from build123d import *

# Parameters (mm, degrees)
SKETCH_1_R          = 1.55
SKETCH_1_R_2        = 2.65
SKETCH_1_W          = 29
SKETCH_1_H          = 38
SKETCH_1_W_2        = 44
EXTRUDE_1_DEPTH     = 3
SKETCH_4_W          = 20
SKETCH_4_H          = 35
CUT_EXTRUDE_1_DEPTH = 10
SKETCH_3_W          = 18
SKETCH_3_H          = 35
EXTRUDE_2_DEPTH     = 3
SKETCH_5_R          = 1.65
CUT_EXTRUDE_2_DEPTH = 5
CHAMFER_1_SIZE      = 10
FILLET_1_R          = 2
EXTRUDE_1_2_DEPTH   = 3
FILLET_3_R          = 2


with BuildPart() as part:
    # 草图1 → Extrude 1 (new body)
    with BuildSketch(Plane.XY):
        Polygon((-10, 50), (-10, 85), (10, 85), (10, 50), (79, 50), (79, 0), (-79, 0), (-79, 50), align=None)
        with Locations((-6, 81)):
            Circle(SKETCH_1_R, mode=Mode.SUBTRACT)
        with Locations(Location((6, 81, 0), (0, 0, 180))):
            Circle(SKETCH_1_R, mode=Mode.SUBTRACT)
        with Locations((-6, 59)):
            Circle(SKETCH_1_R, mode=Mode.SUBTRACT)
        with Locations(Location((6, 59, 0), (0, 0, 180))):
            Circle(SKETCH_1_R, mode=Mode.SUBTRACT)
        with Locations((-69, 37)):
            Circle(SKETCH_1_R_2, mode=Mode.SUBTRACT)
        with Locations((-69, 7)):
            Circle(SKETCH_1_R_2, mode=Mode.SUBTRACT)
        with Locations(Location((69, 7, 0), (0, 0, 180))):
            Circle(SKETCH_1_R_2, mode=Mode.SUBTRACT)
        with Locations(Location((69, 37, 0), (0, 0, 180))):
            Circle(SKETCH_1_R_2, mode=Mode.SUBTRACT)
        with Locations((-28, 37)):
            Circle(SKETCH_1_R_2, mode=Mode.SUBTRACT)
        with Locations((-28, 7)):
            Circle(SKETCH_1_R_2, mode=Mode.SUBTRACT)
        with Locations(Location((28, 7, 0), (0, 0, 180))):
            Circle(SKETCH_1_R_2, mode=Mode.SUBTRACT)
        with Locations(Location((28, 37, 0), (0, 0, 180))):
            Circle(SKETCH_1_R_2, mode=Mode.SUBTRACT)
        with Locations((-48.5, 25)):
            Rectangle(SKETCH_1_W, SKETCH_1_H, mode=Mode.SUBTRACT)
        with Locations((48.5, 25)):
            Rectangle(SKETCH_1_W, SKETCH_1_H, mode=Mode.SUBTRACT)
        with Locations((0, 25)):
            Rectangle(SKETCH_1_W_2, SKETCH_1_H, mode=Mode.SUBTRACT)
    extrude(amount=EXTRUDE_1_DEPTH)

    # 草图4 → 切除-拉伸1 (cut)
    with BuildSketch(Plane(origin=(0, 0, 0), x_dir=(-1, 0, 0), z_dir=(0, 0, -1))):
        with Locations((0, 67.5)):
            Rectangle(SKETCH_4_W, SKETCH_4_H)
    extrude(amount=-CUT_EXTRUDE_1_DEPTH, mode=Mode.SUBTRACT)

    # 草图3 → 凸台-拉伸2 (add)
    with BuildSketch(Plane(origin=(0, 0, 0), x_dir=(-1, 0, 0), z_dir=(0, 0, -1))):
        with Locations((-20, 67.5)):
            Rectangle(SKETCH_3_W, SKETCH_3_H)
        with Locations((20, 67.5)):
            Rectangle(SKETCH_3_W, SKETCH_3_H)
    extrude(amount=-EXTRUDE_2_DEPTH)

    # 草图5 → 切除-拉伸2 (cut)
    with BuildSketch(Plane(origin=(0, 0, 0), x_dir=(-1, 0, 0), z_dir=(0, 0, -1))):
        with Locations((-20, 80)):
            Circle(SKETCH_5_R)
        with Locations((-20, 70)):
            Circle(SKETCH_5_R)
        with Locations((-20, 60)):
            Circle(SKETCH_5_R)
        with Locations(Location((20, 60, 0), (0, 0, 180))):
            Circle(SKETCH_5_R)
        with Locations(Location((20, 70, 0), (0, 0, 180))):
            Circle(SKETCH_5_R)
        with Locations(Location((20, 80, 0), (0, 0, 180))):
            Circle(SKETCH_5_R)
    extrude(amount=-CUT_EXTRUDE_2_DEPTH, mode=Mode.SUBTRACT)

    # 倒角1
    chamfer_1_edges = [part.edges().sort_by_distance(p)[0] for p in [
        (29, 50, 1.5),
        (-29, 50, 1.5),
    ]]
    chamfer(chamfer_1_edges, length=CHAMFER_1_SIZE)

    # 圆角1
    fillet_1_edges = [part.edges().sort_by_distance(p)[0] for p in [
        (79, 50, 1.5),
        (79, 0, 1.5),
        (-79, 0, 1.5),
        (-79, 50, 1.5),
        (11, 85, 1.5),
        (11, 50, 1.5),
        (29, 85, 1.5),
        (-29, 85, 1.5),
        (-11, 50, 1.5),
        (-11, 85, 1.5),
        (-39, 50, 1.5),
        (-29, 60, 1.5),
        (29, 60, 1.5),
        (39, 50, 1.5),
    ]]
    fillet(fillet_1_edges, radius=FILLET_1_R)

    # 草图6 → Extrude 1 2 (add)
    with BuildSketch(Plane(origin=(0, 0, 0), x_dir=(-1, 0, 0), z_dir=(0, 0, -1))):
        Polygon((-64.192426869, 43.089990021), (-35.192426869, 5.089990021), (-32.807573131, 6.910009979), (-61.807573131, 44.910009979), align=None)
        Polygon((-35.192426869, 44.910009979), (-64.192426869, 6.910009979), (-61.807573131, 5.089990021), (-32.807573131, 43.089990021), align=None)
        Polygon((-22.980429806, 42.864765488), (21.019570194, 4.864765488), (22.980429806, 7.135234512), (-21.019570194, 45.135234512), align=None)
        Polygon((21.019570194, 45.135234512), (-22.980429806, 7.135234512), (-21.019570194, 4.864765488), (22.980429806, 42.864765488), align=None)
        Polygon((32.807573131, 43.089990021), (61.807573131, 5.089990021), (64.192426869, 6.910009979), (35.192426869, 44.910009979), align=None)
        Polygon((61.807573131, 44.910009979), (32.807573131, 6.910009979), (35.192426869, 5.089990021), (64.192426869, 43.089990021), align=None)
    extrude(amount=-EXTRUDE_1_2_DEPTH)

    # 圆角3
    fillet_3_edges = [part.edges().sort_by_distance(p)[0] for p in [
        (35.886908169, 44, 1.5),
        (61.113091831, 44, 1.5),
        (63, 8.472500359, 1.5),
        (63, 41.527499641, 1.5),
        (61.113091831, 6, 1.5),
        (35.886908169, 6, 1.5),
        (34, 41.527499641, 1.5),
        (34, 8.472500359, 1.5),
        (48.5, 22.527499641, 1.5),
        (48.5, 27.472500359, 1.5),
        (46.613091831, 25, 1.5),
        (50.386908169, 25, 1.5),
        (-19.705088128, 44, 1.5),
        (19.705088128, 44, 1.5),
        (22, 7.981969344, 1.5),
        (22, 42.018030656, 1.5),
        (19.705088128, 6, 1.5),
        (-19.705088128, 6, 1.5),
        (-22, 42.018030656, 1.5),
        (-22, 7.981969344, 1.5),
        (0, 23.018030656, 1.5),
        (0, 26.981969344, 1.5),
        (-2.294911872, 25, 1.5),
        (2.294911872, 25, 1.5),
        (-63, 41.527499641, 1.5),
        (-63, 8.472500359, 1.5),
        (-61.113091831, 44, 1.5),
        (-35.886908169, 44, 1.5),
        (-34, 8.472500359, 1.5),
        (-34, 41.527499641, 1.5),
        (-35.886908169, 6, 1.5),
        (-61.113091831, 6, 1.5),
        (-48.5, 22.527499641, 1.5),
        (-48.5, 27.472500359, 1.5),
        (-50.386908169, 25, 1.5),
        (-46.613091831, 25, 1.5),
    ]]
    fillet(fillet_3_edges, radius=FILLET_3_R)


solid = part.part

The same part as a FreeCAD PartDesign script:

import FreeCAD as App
import Part
import Sketcher

V = App.Vector
Q = App.Units.Quantity


def edges_at(feature, points):
    """Names of the edges that pass closest to the given points."""
    edges = feature.Shape.Edges
    near = lambda p: min(range(len(edges)), key=lambda i: edges[i].distToShape(Part.Vertex(*p))[0])
    return sorted({f"Edge{near(p) + 1}" for p in points})

doc = App.newDocument("Part")
body = doc.addObject("PartDesign::Body", "Body")

sketch1 = body.newObject("Sketcher::SketchObject", "Sketch")
sketch1.AttachmentSupport = (doc.getObject("XY_Plane"), [""])
sketch1.MapMode = "FlatFace"
sketch1.addGeometry([
    Part.LineSegment(V(-10, 85, 0), V(-10, 50, 0)),
    Part.LineSegment(V(-10, 50, 0), V(-79, 50, 0)),
    Part.LineSegment(V(-79, 50, 0), V(-79, 0, 0)),
    Part.LineSegment(V(-79, 0, 0), V(79, 0, 0)),
    Part.LineSegment(V(79, 0, 0), V(79, 50, 0)),
    Part.LineSegment(V(79, 50, 0), V(10, 50, 0)),
    Part.LineSegment(V(10, 50, 0), V(10, 85, 0)),
    Part.LineSegment(V(10, 85, 0), V(-10, 85, 0)),
    Part.Circle(V(69, 7, 0), V(0, 0, 1), 2.6),
    Part.Circle(V(28, 7, 0), V(0, 0, 1), 2.6),
    Part.LineSegment(V(34, 6, 0), V(34, 44, 0)),
    Part.LineSegment(V(34, 44, 0), V(63, 44, 0)),
    Part.LineSegment(V(63, 44, 0), V(63, 6, 0)),
    Part.LineSegment(V(63, 6, 0), V(34, 6, 0)),
    Part.Circle(V(69, 37, 0), V(0, 0, 1), 2.6),
    Part.Circle(V(28, 37, 0), V(0, 0, 1), 2.6),
    Part.Circle(V(-28, 7, 0), V(0, 0, 1), 2.6),
    Part.Circle(V(-69, 7, 0), V(0, 0, 1), 2.6),
    Part.LineSegment(V(-22, 6, 0), V(-22, 44, 0)),
    Part.LineSegment(V(-22, 44, 0), V(22, 44, 0)),
    Part.LineSegment(V(22, 44, 0), V(22, 6, 0)),
    Part.LineSegment(V(22, 6, 0), V(-22, 6, 0)),
    Part.Circle(V(-28, 37, 0), V(0, 0, 1), 2.6),
    Part.LineSegment(V(-63, 6, 0), V(-63, 44, 0)),
    Part.LineSegment(V(-63, 44, 0), V(-34, 44, 0)),
    Part.LineSegment(V(-34, 44, 0), V(-34, 6, 0)),
    Part.LineSegment(V(-34, 6, 0), V(-63, 6, 0)),
    Part.Circle(V(-69, 37, 0), V(0, 0, 1), 2.6),
    Part.Circle(V(6, 59, 0), V(0, 0, 1), 1.6),
    Part.Circle(V(6, 81, 0), V(0, 0, 1), 1.6),
    Part.Circle(V(-6, 59, 0), V(0, 0, 1), 1.6),
    Part.Circle(V(-6, 81, 0), V(0, 0, 1), 1.6),
], False)
sketch1.addConstraint([
    Sketcher.Constraint("Coincident", 0, 2, 1, 1),
    Sketcher.Constraint("Coincident", 1, 2, 2, 1),
    Sketcher.Constraint("Coincident", 2, 2, 3, 1),
    Sketcher.Constraint("Coincident", 3, 2, 4, 1),
    Sketcher.Constraint("Coincident", 4, 2, 5, 1),
    Sketcher.Constraint("Coincident", 5, 2, 6, 1),
    Sketcher.Constraint("Coincident", 6, 2, 7, 1),
    Sketcher.Constraint("Coincident", 7, 2, 0, 1),
    Sketcher.Constraint("Coincident", 10, 2, 11, 1),
    Sketcher.Constraint("Coincident", 11, 2, 12, 1),
    Sketcher.Constraint("Coincident", 12, 2, 13, 1),
    Sketcher.Constraint("Coincident", 13, 2, 10, 1),
    Sketcher.Constraint("Coincident", 18, 2, 19, 1),
    Sketcher.Constraint("Coincident", 19, 2, 20, 1),
    Sketcher.Constraint("Coincident", 20, 2, 21, 1),
    Sketcher.Constraint("Coincident", 21, 2, 18, 1),
    Sketcher.Constraint("Coincident", 23, 2, 24, 1),
    Sketcher.Constraint("Coincident", 24, 2, 25, 1),
    Sketcher.Constraint("Coincident", 25, 2, 26, 1),
    Sketcher.Constraint("Coincident", 26, 2, 23, 1),
    Sketcher.Constraint("Vertical", 0),
    Sketcher.Constraint("Horizontal", 1),
    Sketcher.Constraint("Vertical", 2),
    Sketcher.Constraint("Horizontal", 3),
    Sketcher.Constraint("Vertical", 4),
    Sketcher.Constraint("Horizontal", 5),
    Sketcher.Constraint("Vertical", 6),
    Sketcher.Constraint("Horizontal", 7),
    Sketcher.Constraint("Vertical", 10),
    Sketcher.Constraint("Horizontal", 11),
    Sketcher.Constraint("Vertical", 12),
    Sketcher.Constraint("Horizontal", 13),
    Sketcher.Constraint("Vertical", 18),
    Sketcher.Constraint("Horizontal", 19),
    Sketcher.Constraint("Vertical", 20),
    Sketcher.Constraint("Horizontal", 21),
    Sketcher.Constraint("Vertical", 23),
    Sketcher.Constraint("Horizontal", 24),
    Sketcher.Constraint("Vertical", 25),
    Sketcher.Constraint("Horizontal", 26),
    Sketcher.Constraint("Equal", 8, 9),
    Sketcher.Constraint("Equal", 9, 14),
    Sketcher.Constraint("Equal", 14, 15),
    Sketcher.Constraint("Equal", 15, 16),
    Sketcher.Constraint("Equal", 16, 17),
    Sketcher.Constraint("Equal", 17, 22),
    Sketcher.Constraint("Equal", 22, 27),
    Sketcher.Constraint("Equal", 28, 29),
    Sketcher.Constraint("Equal", 29, 30),
    Sketcher.Constraint("Equal", 30, 31),
    Sketcher.Constraint("Symmetric", 2, 2, 3, 2, -1, 1),
    Sketcher.Constraint("Symmetric", 9, 3, 16, 3, -2),
    Sketcher.Constraint("Symmetric", 8, 3, 17, 3, -2),
    Sketcher.Constraint("Symmetric", 15, 3, 22, 3, -2),
    Sketcher.Constraint("Symmetric", 14, 3, 27, 3, -2),
    Sketcher.Constraint("Symmetric", 28, 3, 30, 3, -2),
    Sketcher.Constraint("Symmetric", 29, 3, 31, 3, -2),
    Sketcher.Constraint("Symmetric", 0, 2, 5, 2, -2),
    Sketcher.Constraint("Symmetric", 11, 2, 23, 2, -2),
    Sketcher.Constraint("Symmetric", 13, 2, 25, 2, -2),
    Sketcher.Constraint("Horizontal", 8, 3, 9, 3),
    Sketcher.Constraint("Horizontal", 14, 3, 15, 3),
    Sketcher.Constraint("Horizontal", 11, 2, 18, 2),
    Sketcher.Constraint("Horizontal", 13, 2, 20, 2),
    Sketcher.Constraint("Vertical", 8, 3, 14, 3),
    Sketcher.Constraint("Vertical", 9, 3, 15, 3),
    Sketcher.Constraint("Vertical", 28, 3, 29, 3),
    Sketcher.Constraint("Diameter", 8, Q("5.3 mm")),
    Sketcher.Constraint("Diameter", 28, Q("3.1 mm")),
    Sketcher.Constraint("DistanceX", 1, 2, 1, 1, Q("69 mm")),
    Sketcher.Constraint("DistanceX", 3, 1, 3, 2, Q("158 mm")),
    Sketcher.Constraint("DistanceX", 11, 1, 11, 2, Q("29 mm")),
    Sketcher.Constraint("DistanceX", 19, 1, 19, 2, Q("44 mm")),
    Sketcher.Constraint("DistanceY", 0, 2, 0, 1, Q("35 mm")),
    Sketcher.Constraint("DistanceY", 2, 2, 2, 1, Q("50 mm")),
    Sketcher.Constraint("DistanceY", 10, 1, 10, 2, Q("38 mm")),
    Sketcher.Constraint("DistanceX", -1, 1, 8, 3, Q("69 mm")),
    Sketcher.Constraint("DistanceY", -1, 1, 8, 3, Q("7 mm")),
    Sketcher.Constraint("DistanceX", -1, 1, 9, 3, Q("28 mm")),
    Sketcher.Constraint("DistanceY", -1, 1, 14, 3, Q("37 mm")),
    Sketcher.Constraint("DistanceX", -1, 1, 28, 3, Q("6 mm")),
    Sketcher.Constraint("DistanceY", -1, 1, 28, 3, Q("59 mm")),
    Sketcher.Constraint("DistanceY", -1, 1, 29, 3, Q("81 mm")),
    Sketcher.Constraint("DistanceX", -1, 1, 10, 2, Q("34 mm")),
    Sketcher.Constraint("DistanceY", -1, 1, 10, 2, Q("44 mm")),
    Sketcher.Constraint("DistanceX", 18, 2, -1, 1, Q("22 mm")),
])
pad1 = body.newObject("PartDesign::Pad", "Pad")
pad1.Profile = sketch1
pad1.Length = 3

sketch2 = body.newObject("Sketcher::SketchObject", "Sketch001")
sketch2.AttachmentSupport = (doc.getObject("XY_Plane"), [""])
sketch2.MapMode = "FlatFace"
sketch2.addGeometry([
    Part.LineSegment(V(10, 85, 0), V(10, 50, 0)),
    Part.LineSegment(V(10, 50, 0), V(-10, 50, 0)),
    Part.LineSegment(V(-10, 50, 0), V(-10, 85, 0)),
    Part.LineSegment(V(-10, 85, 0), V(10, 85, 0)),
], False)
sketch2.addConstraint([
    Sketcher.Constraint("Coincident", 0, 2, 1, 1),
    Sketcher.Constraint("Coincident", 1, 2, 2, 1),
    Sketcher.Constraint("Coincident", 2, 2, 3, 1),
    Sketcher.Constraint("Coincident", 3, 2, 0, 1),
    Sketcher.Constraint("Vertical", 0),
    Sketcher.Constraint("Horizontal", 1),
    Sketcher.Constraint("Vertical", 2),
    Sketcher.Constraint("Horizontal", 3),
    Sketcher.Constraint("DistanceX", 1, 2, 1, 1, Q("20 mm")),
    Sketcher.Constraint("DistanceY", 0, 2, 0, 1, Q("35 mm")),
    Sketcher.Constraint("DistanceX", -1, 1, 0, 2, Q("10 mm")),
    Sketcher.Constraint("DistanceY", -1, 1, 0, 2, Q("50 mm")),
])
pocket1 = body.newObject("PartDesign::Pocket", "Pocket")
pocket1.Profile = sketch2
pocket1.Length = 10
pocket1.Reversed = True

sketch3 = body.newObject("Sketcher::SketchObject", "Sketch002")
sketch3.AttachmentSupport = (doc.getObject("XY_Plane"), [""])
sketch3.MapMode = "FlatFace"
sketch3.addGeometry([
    Part.LineSegment(V(29, 85, 0), V(29, 50, 0)),
    Part.LineSegment(V(29, 50, 0), V(11, 50, 0)),
    Part.LineSegment(V(11, 50, 0), V(11, 85, 0)),
    Part.LineSegment(V(11, 85, 0), V(29, 85, 0)),
    Part.LineSegment(V(-11, 85, 0), V(-11, 50, 0)),
    Part.LineSegment(V(-11, 50, 0), V(-29, 50, 0)),
    Part.LineSegment(V(-29, 50, 0), V(-29, 85, 0)),
    Part.LineSegment(V(-29, 85, 0), V(-11, 85, 0)),
], False)
sketch3.addConstraint([
    Sketcher.Constraint("Coincident", 0, 2, 1, 1),
    Sketcher.Constraint("Coincident", 1, 2, 2, 1),
    Sketcher.Constraint("Coincident", 2, 2, 3, 1),
    Sketcher.Constraint("Coincident", 3, 2, 0, 1),
    Sketcher.Constraint("Coincident", 4, 2, 5, 1),
    Sketcher.Constraint("Coincident", 5, 2, 6, 1),
    Sketcher.Constraint("Coincident", 6, 2, 7, 1),
    Sketcher.Constraint("Coincident", 7, 2, 4, 1),
    Sketcher.Constraint("Vertical", 0),
    Sketcher.Constraint("Horizontal", 1),
    Sketcher.Constraint("Vertical", 2),
    Sketcher.Constraint("Horizontal", 3),
    Sketcher.Constraint("Vertical", 4),
    Sketcher.Constraint("Horizontal", 5),
    Sketcher.Constraint("Vertical", 6),
    Sketcher.Constraint("Horizontal", 7),
    Sketcher.Constraint("Symmetric", 1, 2, 4, 2, -2),
    Sketcher.Constraint("Symmetric", 3, 2, 6, 2, -2),
    Sketcher.Constraint("DistanceX", 1, 2, 1, 1, Q("18 mm")),
    Sketcher.Constraint("DistanceY", 0, 2, 0, 1, Q("35 mm")),
    Sketcher.Constraint("DistanceX", -1, 1, 0, 2, Q("29 mm")),
    Sketcher.Constraint("DistanceY", -1, 1, 0, 2, Q("50 mm")),
])
pad2 = body.newObject("PartDesign::Pad", "Pad001")
pad2.Profile = sketch3
pad2.Length = 3

sketch4 = body.newObject("Sketcher::SketchObject", "Sketch003")
sketch4.AttachmentSupport = (doc.getObject("XY_Plane"), [""])
sketch4.MapMode = "FlatFace"
sketch4.addGeometry([
    Part.Circle(V(20, 80, 0), V(0, 0, 1), 1.6),
    Part.Circle(V(20, 70, 0), V(0, 0, 1), 1.6),
    Part.Circle(V(20, 60, 0), V(0, 0, 1), 1.6),
    Part.Circle(V(-20, 60, 0), V(0, 0, 1), 1.6),
    Part.Circle(V(-20, 70, 0), V(0, 0, 1), 1.6),
    Part.Circle(V(-20, 80, 0), V(0, 0, 1), 1.6),
], False)
sketch4.addConstraint([
    Sketcher.Constraint("Equal", 0, 1),
    Sketcher.Constraint("Equal", 1, 2),
    Sketcher.Constraint("Equal", 2, 3),
    Sketcher.Constraint("Equal", 3, 4),
    Sketcher.Constraint("Equal", 4, 5),
    Sketcher.Constraint("Symmetric", 2, 3, 3, 3, -2),
    Sketcher.Constraint("Symmetric", 1, 3, 4, 3, -2),
    Sketcher.Constraint("Symmetric", 0, 3, 5, 3, -2),
    Sketcher.Constraint("Vertical", 0, 3, 1, 3),
    Sketcher.Constraint("Vertical", 1, 3, 2, 3),
    Sketcher.Constraint("Diameter", 0, Q("3.3 mm")),
    Sketcher.Constraint("DistanceX", -1, 1, 0, 3, Q("20 mm")),
    Sketcher.Constraint("DistanceY", -1, 1, 0, 3, Q("80 mm")),
    Sketcher.Constraint("DistanceY", -1, 1, 1, 3, Q("70 mm")),
    Sketcher.Constraint("DistanceY", -1, 1, 2, 3, Q("60 mm")),
])
pocket2 = body.newObject("PartDesign::Pocket", "Pocket001")
pocket2.Profile = sketch4
pocket2.Length = 5
pocket2.Reversed = True
doc.recompute()

chamfer = body.newObject("PartDesign::Chamfer", "Chamfer")
chamfer.Base = (pocket2, edges_at(pocket2, [(29, 50, 1.5), (-29, 50, 1.5)]))
chamfer.Size = 10
doc.recompute()

fillet = body.newObject("PartDesign::Fillet", "Fillet")
fillet.Base = (chamfer, edges_at(chamfer, [
    (79, 50, 1.5),
    (79, 0, 1.5),
    (-79, 0, 1.5),
    (-79, 50, 1.5),
    (11, 85, 1.5),
    (11, 50, 1.5),
    (29, 85, 1.5),
    (-29, 85, 1.5),
    (-11, 50, 1.5),
    (-11, 85, 1.5),
    (-39, 50, 1.5),
    (-29, 60, 1.5),
    (29, 60, 1.5),
    (39, 50, 1.5),
]))
fillet.Radius = 2

sketch5 = body.newObject("Sketcher::SketchObject", "Sketch004")
sketch5.AttachmentSupport = (doc.getObject("XY_Plane"), [""])
sketch5.MapMode = "FlatFace"
sketch5.addGeometry([
    Part.LineSegment(V(61.8, 44.9, 0), V(64.2, 43.1, 0)),
    Part.LineSegment(V(64.2, 43.1, 0), V(50.4, 25, 0)),
    Part.LineSegment(V(50.4, 25, 0), V(64.2, 6.9, 0)),
    Part.LineSegment(V(64.2, 6.9, 0), V(61.8, 5.1, 0)),
    Part.LineSegment(V(61.8, 5.1, 0), V(48.5, 22.5, 0)),
    Part.LineSegment(V(48.5, 22.5, 0), V(35.2, 5.1, 0)),
    Part.LineSegment(V(35.2, 5.1, 0), V(32.8, 6.9, 0)),
    Part.LineSegment(V(32.8, 6.9, 0), V(46.6, 25, 0)),
    Part.LineSegment(V(46.6, 25, 0), V(32.8, 43.1, 0)),
    Part.LineSegment(V(32.8, 43.1, 0), V(35.2, 44.9, 0)),
    Part.LineSegment(V(35.2, 44.9, 0), V(48.5, 27.5, 0)),
    Part.LineSegment(V(48.5, 27.5, 0), V(61.8, 44.9, 0)),
    Part.LineSegment(V(21, 45.1, 0), V(23, 42.9, 0)),
    Part.LineSegment(V(23, 42.9, 0), V(2.3, 25, 0)),
    Part.LineSegment(V(2.3, 25, 0), V(23, 7.1, 0)),
    Part.LineSegment(V(23, 7.1, 0), V(21, 4.9, 0)),
    Part.LineSegment(V(21, 4.9, 0), V(0, 23, 0)),
    Part.LineSegment(V(0, 23, 0), V(-21, 4.9, 0)),
    Part.LineSegment(V(-21, 4.9, 0), V(-23, 7.1, 0)),
    Part.LineSegment(V(-23, 7.1, 0), V(-2.3, 25, 0)),
    Part.LineSegment(V(-2.3, 25, 0), V(-23, 42.9, 0)),
    Part.LineSegment(V(-23, 42.9, 0), V(-21, 45.1, 0)),
    Part.LineSegment(V(-21, 45.1, 0), V(0, 27, 0)),
    Part.LineSegment(V(0, 27, 0), V(21, 45.1, 0)),
    Part.LineSegment(V(-35.2, 44.9, 0), V(-32.8, 43.1, 0)),
    Part.LineSegment(V(-32.8, 43.1, 0), V(-46.6, 25, 0)),
    Part.LineSegment(V(-46.6, 25, 0), V(-32.8, 6.9, 0)),
    Part.LineSegment(V(-32.8, 6.9, 0), V(-35.2, 5.1, 0)),
    Part.LineSegment(V(-35.2, 5.1, 0), V(-48.5, 22.5, 0)),
    Part.LineSegment(V(-48.5, 22.5, 0), V(-61.8, 5.1, 0)),
    Part.LineSegment(V(-61.8, 5.1, 0), V(-64.2, 6.9, 0)),
    Part.LineSegment(V(-64.2, 6.9, 0), V(-50.4, 25, 0)),
    Part.LineSegment(V(-50.4, 25, 0), V(-64.2, 43.1, 0)),
    Part.LineSegment(V(-64.2, 43.1, 0), V(-61.8, 44.9, 0)),
    Part.LineSegment(V(-61.8, 44.9, 0), V(-48.5, 27.5, 0)),
    Part.LineSegment(V(-48.5, 27.5, 0), V(-35.2, 44.9, 0)),
], False)
sketch5.addConstraint([
    Sketcher.Constraint("Coincident", 0, 2, 1, 1),
    Sketcher.Constraint("Coincident", 1, 2, 2, 1),
    Sketcher.Constraint("Coincident", 2, 2, 3, 1),
    Sketcher.Constraint("Coincident", 3, 2, 4, 1),
    Sketcher.Constraint("Coincident", 4, 2, 5, 1),
    Sketcher.Constraint("Coincident", 5, 2, 6, 1),
    Sketcher.Constraint("Coincident", 6, 2, 7, 1),
    Sketcher.Constraint("Coincident", 7, 2, 8, 1),
    Sketcher.Constraint("Coincident", 8, 2, 9, 1),
    Sketcher.Constraint("Coincident", 9, 2, 10, 1),
    Sketcher.Constraint("Coincident", 10, 2, 11, 1),
    Sketcher.Constraint("Coincident", 11, 2, 0, 1),
    Sketcher.Constraint("Coincident", 12, 2, 13, 1),
    Sketcher.Constraint("Coincident", 13, 2, 14, 1),
    Sketcher.Constraint("Coincident", 14, 2, 15, 1),
    Sketcher.Constraint("Coincident", 15, 2, 16, 1),
    Sketcher.Constraint("Coincident", 16, 2, 17, 1),
    Sketcher.Constraint("Coincident", 17, 2, 18, 1),
    Sketcher.Constraint("Coincident", 18, 2, 19, 1),
    Sketcher.Constraint("Coincident", 19, 2, 20, 1),
    Sketcher.Constraint("Coincident", 20, 2, 21, 1),
    Sketcher.Constraint("Coincident", 21, 2, 22, 1),
    Sketcher.Constraint("Coincident", 22, 2, 23, 1),
    Sketcher.Constraint("Coincident", 23, 2, 12, 1),
    Sketcher.Constraint("Coincident", 24, 2, 25, 1),
    Sketcher.Constraint("Coincident", 25, 2, 26, 1),
    Sketcher.Constraint("Coincident", 26, 2, 27, 1),
    Sketcher.Constraint("Coincident", 27, 2, 28, 1),
    Sketcher.Constraint("Coincident", 28, 2, 29, 1),
    Sketcher.Constraint("Coincident", 29, 2, 30, 1),
    Sketcher.Constraint("Coincident", 30, 2, 31, 1),
    Sketcher.Constraint("Coincident", 31, 2, 32, 1),
    Sketcher.Constraint("Coincident", 32, 2, 33, 1),
    Sketcher.Constraint("Coincident", 33, 2, 34, 1),
    Sketcher.Constraint("Coincident", 34, 2, 35, 1),
    Sketcher.Constraint("Coincident", 35, 2, 24, 1),
    Sketcher.Constraint("Symmetric", 15, 2, 17, 2, -2),
    Sketcher.Constraint("Symmetric", 14, 2, 18, 2, -2),
    Sketcher.Constraint("Symmetric", 13, 2, 19, 2, -2),
    Sketcher.Constraint("Symmetric", 12, 2, 20, 2, -2),
    Sketcher.Constraint("Symmetric", 21, 2, 23, 2, -2),
    Sketcher.Constraint("Symmetric", 8, 2, 24, 2, -2),
    Sketcher.Constraint("Symmetric", 7, 2, 25, 2, -2),
    Sketcher.Constraint("Symmetric", 6, 2, 26, 2, -2),
    Sketcher.Constraint("Symmetric", 5, 2, 27, 2, -2),
    Sketcher.Constraint("Symmetric", 4, 2, 28, 2, -2),
    Sketcher.Constraint("Symmetric", 3, 2, 29, 2, -2),
    Sketcher.Constraint("Symmetric", 2, 2, 30, 2, -2),
    Sketcher.Constraint("Symmetric", 1, 2, 31, 2, -2),
    Sketcher.Constraint("Symmetric", 0, 2, 32, 2, -2),
    Sketcher.Constraint("Symmetric", 11, 2, 33, 2, -2),
    Sketcher.Constraint("Symmetric", 10, 2, 34, 2, -2),
    Sketcher.Constraint("Symmetric", 9, 2, 35, 2, -2),
    Sketcher.Constraint("PointOnObject", 16, 2, -2),
    Sketcher.Constraint("PointOnObject", 22, 2, -2),
    Sketcher.Constraint("Perpendicular", 0, 1),
    Sketcher.Constraint("Perpendicular", 2, 3),
    Sketcher.Constraint("Perpendicular", 3, 4),
    Sketcher.Constraint("Parallel", 1, 5),
    Sketcher.Constraint("Perpendicular", 5, 6),
    Sketcher.Constraint("Perpendicular", 6, 7),
    Sketcher.Constraint("Parallel", 4, 8),
    Sketcher.Constraint("Perpendicular", 8, 9),
    Sketcher.Constraint("Perpendicular", 9, 10),
    Sketcher.Constraint("Parallel", 7, 11),
    Sketcher.Constraint("Perpendicular", 12, 13),
    Sketcher.Constraint("Perpendicular", 14, 15),
    Sketcher.Constraint("Perpendicular", 15, 16),
    Sketcher.Constraint("Parallel", 13, 17),
    Sketcher.Constraint("Perpendicular", 21, 22),
    Sketcher.Constraint("Perpendicular", 11, 24),
    Sketcher.Constraint("Horizontal", 3, 2, 5, 2),
    Sketcher.Constraint("Horizontal", 2, 2, 6, 2),
    Sketcher.Constraint("Horizontal", 1, 2, 7, 2),
    Sketcher.Constraint("Horizontal", 0, 2, 8, 2),
    Sketcher.Constraint("Horizontal", 9, 2, 11, 2),
    Sketcher.Constraint("Horizontal", 7, 2, 13, 2),
    Sketcher.Constraint("Vertical", 0, 2, 2, 2),
    Sketcher.Constraint("Vertical", 5, 2, 9, 2),
    Sketcher.Constraint("Vertical", 12, 2, 14, 2),
    Sketcher.Constraint("Vertical", 17, 2, 21, 2),
    Sketcher.Constraint("Equal", 9, 12),
    Sketcher.Constraint("Distance", 0, Q("3 mm")),
    Sketcher.Constraint("DistanceY", -1, 1, 1, 2, Q("25 mm")),
    Sketcher.Constraint("DistanceY", 3, 2, 0, 2, Q("38 mm")),
    Sketcher.Constraint("DistanceX", 5, 2, 2, 2, Q("29 mm")),
    Sketcher.Constraint("DistanceX", 17, 2, 14, 2, Q("44 mm")),
    Sketcher.Constraint("DistanceY", 17, 2, 20, 2, Q("38 mm")),
    Sketcher.Constraint("DistanceX", -1, 1, 4, 2, Q("48.5 mm")),
    Sketcher.Constraint("DistanceY", 4, 2, 10, 2, Q("4.945001 mm")),
    Sketcher.Constraint("Distance", 13, Q("27.332042 mm")),
])
pad3 = body.newObject("PartDesign::Pad", "Pad002")
pad3.Profile = sketch5
pad3.Length = 3
doc.recompute()

fillet2 = body.newObject("PartDesign::Fillet", "Fillet001")
fillet2.Base = (pad3, edges_at(pad3, [
    (35.887, 44, 1.5),
    (61.113, 44, 1.5),
    (63, 8.473, 1.5),
    (63, 41.527, 1.5),
    (61.113, 6, 1.5),
    (35.887, 6, 1.5),
    (34, 41.527, 1.5),
    (34, 8.473, 1.5),
    (48.5, 22.527, 1.5),
    (48.5, 27.473, 1.5),
    (46.613, 25, 1.5),
    (50.387, 25, 1.5),
    (-19.705, 44, 1.5),
    (19.705, 44, 1.5),
    (22, 7.982, 1.5),
    (22, 42.018, 1.5),
    (19.705, 6, 1.5),
    (-19.705, 6, 1.5),
    (-22, 42.018, 1.5),
    (-22, 7.982, 1.5),
    (0, 23.018, 1.5),
    (0, 26.982, 1.5),
    (-2.295, 25, 1.5),
    (2.295, 25, 1.5),
    (-63, 41.527, 1.5),
    (-63, 8.473, 1.5),
    (-61.113, 44, 1.5),
    (-35.887, 44, 1.5),
    (-34, 8.473, 1.5),
    (-34, 41.527, 1.5),
    (-35.887, 6, 1.5),
    (-61.113, 6, 1.5),
    (-48.5, 22.527, 1.5),
    (-48.5, 27.473, 1.5),
    (-50.387, 25, 1.5),
    (-46.613, 25, 1.5),
]))
fillet2.Radius = 2

doc.recompute()
